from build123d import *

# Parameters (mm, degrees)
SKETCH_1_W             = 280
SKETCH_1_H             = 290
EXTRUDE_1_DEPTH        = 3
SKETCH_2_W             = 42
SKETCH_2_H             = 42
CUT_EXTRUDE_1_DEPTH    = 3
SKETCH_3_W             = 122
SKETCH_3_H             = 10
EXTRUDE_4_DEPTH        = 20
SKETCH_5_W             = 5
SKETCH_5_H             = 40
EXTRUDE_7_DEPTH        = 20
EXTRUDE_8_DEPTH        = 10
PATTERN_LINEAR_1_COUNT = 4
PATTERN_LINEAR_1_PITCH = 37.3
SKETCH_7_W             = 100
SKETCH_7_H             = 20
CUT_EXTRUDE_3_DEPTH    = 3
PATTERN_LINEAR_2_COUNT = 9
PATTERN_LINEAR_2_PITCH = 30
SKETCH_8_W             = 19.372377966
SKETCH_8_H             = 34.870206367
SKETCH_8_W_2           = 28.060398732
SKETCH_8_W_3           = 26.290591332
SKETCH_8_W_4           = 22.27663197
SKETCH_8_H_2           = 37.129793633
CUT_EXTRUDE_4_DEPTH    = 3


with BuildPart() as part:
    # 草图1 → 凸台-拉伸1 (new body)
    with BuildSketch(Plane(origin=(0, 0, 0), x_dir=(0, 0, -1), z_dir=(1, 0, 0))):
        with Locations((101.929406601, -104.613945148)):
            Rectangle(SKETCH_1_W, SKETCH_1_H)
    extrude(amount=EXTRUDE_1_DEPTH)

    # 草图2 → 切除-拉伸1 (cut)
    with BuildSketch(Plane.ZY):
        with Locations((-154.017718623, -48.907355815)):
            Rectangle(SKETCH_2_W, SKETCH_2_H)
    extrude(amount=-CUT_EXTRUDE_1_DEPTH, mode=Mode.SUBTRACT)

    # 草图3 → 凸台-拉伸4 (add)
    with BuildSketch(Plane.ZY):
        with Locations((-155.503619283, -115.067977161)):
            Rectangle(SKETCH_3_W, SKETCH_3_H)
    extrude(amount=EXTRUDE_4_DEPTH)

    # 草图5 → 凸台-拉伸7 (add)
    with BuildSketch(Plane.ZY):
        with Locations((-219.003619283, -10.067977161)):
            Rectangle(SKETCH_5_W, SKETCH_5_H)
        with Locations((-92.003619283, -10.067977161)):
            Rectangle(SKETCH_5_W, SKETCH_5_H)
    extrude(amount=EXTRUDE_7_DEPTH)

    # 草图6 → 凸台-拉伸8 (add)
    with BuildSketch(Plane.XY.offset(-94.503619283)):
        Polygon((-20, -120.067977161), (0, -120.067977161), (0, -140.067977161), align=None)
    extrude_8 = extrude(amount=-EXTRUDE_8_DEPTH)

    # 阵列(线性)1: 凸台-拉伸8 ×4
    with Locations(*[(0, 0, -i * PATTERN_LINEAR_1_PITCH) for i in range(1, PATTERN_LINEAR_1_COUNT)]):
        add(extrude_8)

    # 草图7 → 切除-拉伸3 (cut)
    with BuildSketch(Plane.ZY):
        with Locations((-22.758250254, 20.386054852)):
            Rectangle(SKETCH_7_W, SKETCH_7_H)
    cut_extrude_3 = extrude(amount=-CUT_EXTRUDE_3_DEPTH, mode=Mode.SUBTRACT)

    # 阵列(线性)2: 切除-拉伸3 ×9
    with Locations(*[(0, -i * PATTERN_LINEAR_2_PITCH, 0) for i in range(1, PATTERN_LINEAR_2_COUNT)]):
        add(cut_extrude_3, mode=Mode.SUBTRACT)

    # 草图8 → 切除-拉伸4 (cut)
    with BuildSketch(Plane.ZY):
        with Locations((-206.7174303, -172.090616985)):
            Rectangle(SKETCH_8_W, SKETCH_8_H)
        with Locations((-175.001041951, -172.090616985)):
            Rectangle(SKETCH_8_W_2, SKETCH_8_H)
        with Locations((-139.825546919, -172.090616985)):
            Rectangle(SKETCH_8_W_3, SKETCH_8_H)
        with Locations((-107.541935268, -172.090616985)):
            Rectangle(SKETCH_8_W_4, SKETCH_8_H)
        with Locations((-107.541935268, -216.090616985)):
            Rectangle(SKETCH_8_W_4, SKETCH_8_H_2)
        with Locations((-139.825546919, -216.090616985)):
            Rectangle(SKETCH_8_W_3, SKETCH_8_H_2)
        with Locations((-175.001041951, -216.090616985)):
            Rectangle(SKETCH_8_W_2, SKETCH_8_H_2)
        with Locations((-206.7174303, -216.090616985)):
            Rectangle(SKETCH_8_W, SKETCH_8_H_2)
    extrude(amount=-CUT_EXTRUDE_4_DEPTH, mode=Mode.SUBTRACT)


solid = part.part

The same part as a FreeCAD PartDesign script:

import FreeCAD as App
import Part
import Sketcher
from FreeCAD import Vector


def add_polygon(sketch, points):
    """Adds a closed chain of lines whose ends are joined by coincident constraints."""
    first, n = sketch.GeometryCount, len(points)
    for a, b in zip(points, points[1:] + points[:1]):
        sketch.addGeometry(Part.LineSegment(App.Vector(*a, 0), App.Vector(*b, 0)), False)
    for i in range(n):
        sketch.addConstraint(Sketcher.Constraint("Coincident", first + i, 2, first + (i + 1) % n, 1))

doc = App.newDocument("Part")
params = doc.addObject("Spreadsheet::Sheet", "Params")
for row, (alias, value) in enumerate([
    ("sketch1_width", "290 mm"),
    ("sketch1_height", "280 mm"),
    ("pad1_length", "3 mm"),
    ("sketch2_width", "42 mm"),
    ("pocket1_length", "3 mm"),
    ("sketch3_width", "10 mm"),
    ("sketch3_height", "122 mm"),
    ("pad2_length", "20 mm"),
    ("sketch4_width", "40 mm"),
    ("sketch4_height", "5 mm"),
    ("pad3_length", "20 mm"),
    ("sketch5_width", "20 mm"),
    ("pad4_length", "10 mm"),
    ("linearpattern_pitch", "37.3 mm"),
    ("sketch6_width", "20 mm"),
    ("sketch6_height", "100 mm"),
    ("pocket2_length", "3 mm"),
    ("linearpattern2_pitch", "30 mm"),
    ("pocket3_length", "3 mm"),
], start=1):
    params.set(f"A{row}", alias)
    params.set(f"B{row}", "=" + value)
    params.setAlias(f"B{row}", alias)

body = doc.addObject("PartDesign::Body", "Body")

# Sketch on YZ plane
sketch1 = body.newObject("Sketcher::SketchObject", "Sketch")
sketch1.AttachmentSupport = (doc.getObject("YZ_Plane"), [""])
sketch1.MapMode = "FlatFace"
add_polygon(sketch1, [(40.386055, 38.070593), (-249.613945, 38.070593), (-249.613945, -241.929407), (40.386055, -241.929407)])  # lines 0-3
sketch1.addConstraint(Sketcher.Constraint("Horizontal", 0))
sketch1.addConstraint(Sketcher.Constraint("Vertical", 1))
sketch1.addConstraint(Sketcher.Constraint("Horizontal", 2))
sketch1.addConstraint(Sketcher.Constraint("Vertical", 3))
sketch1.addConstraint(Sketcher.Constraint("DistanceX", 0, 2, 0, 1, 290.0))
sketch1.addConstraint(Sketcher.Constraint("DistanceY", 1, 2, 1, 1, 280.0))
sketch1.addConstraint(Sketcher.Constraint("DistanceX", 0, 2, -1, 1, 249.613945))
sketch1.addConstraint(Sketcher.Constraint("DistanceY", -1, 1, 0, 2, 38.070593))
sketch1.setExpression("Constraints[8]", "Params.sketch1_width")
sketch1.setExpression("Constraints[9]", "Params.sketch1_height")
pad1 = body.newObject("PartDesign::Pad", "Pad")
pad1.Profile = sketch1
pad1.setExpression("Length", "Params.pad1_length")

# Sketch on YZ plane
sketch2 = body.newObject("Sketcher::SketchObject", "Sketch001")
sketch2.AttachmentSupport = (doc.getObject("YZ_Plane"), [""])
sketch2.MapMode = "FlatFace"
add_polygon(sketch2, [(-27.907356, -175.017719), (-69.907356, -175.017719), (-69.907356, -133.017719), (-27.907356, -133.017719)])  # lines 0-3
sketch2.addConstraint(Sketcher.Constraint("Horizontal", 0))
sketch2.addConstraint(Sketcher.Constraint("Vertical", 1))
sketch2.addConstraint(Sketcher.Constraint("Horizontal", 2))
sketch2.addConstraint(Sketcher.Constraint("Vertical", 3))
sketch2.addConstraint(Sketcher.Constraint("Equal", 2, 1))
sketch2.addConstraint(Sketcher.Constraint("DistanceX", 0, 2, 0, 1, 42.0))
sketch2.addConstraint(Sketcher.Constraint("DistanceY", 0, 2, -1, 1, 175.017719))
sketch2.addConstraint(Sketcher.Constraint("DistanceX", 0, 2, -1, 1, 69.907356))
sketch2.setExpression("Constraints[9]", "Params.sketch2_width")
pocket1 = body.newObject("PartDesign::Pocket", "Pocket")
pocket1.Profile = sketch2
pocket1.setExpression("Length", "Params.pocket1_length")
pocket1.Reversed = True

# Sketch on YZ plane
sketch3 = body.newObject("Sketcher::SketchObject", "Sketch002")
sketch3.AttachmentSupport = (doc.getObject("YZ_Plane"), [""])
sketch3.MapMode = "FlatFace"
add_polygon(sketch3, [(-110.067977, -216.503619), (-120.067977, -216.503619), (-120.067977, -94.503619), (-110.067977, -94.503619)])  # lines 0-3
sketch3.addConstraint(Sketcher.Constraint("Horizontal", 0))
sketch3.addConstraint(Sketcher.Constraint("Vertical", 1))
sketch3.addConstraint(Sketcher.Constraint("Horizontal", 2))
sketch3.addConstraint(Sketcher.Constraint("Vertical", 3))
sketch3.addConstraint(Sketcher.Constraint("DistanceX", 0, 2, 0, 1, 10.0))
sketch3.addConstraint(Sketcher.Constraint("DistanceY", 1, 1, 1, 2, 122.0))
sketch3.addConstraint(Sketcher.Constraint("DistanceY", 0, 2, -1, 1, 216.503619))
sketch3.addConstraint(Sketcher.Constraint("DistanceX", 0, 2, -1, 1, 120.067977))
sketch3.setExpression("Constraints[8]", "Params.sketch3_width")
sketch3.setExpression("Constraints[9]", "Params.sketch3_height")
pad2 = body.newObject("PartDesign::Pad", "Pad001")
pad2.Profile = sketch3
pad2.setExpression("Length", "Params.pad2_length")
pad2.Reversed = True

# Sketch on YZ plane
sketch4 = body.newObject("Sketcher::SketchObject", "Sketch003")
sketch4.AttachmentSupport = (doc.getObject("YZ_Plane"), [""])
sketch4.MapMode = "FlatFace"
add_polygon(sketch4, [(9.932023, -221.503619), (-30.067977, -221.503619), (-30.067977, -216.503619), (9.932023, -216.503619)])  # lines 0-3
add_polygon(sketch4, [(9.932023, -94.503619), (-30.067977, -94.503619), (-30.067977, -89.503619), (9.932023, -89.503619)])  # lines 4-7
sketch4.addConstraint(Sketcher.Constraint("Horizontal", 0))
sketch4.addConstraint(Sketcher.Constraint("Vertical", 1))
sketch4.addConstraint(Sketcher.Constraint("Horizontal", 2))
sketch4.addConstraint(Sketcher.Constraint("Vertical", 3))
sketch4.addConstraint(Sketcher.Constraint("Horizontal", 4))
sketch4.addConstraint(Sketcher.Constraint("Vertical", 5))
sketch4.addConstraint(Sketcher.Constraint("Horizontal", 6))
sketch4.addConstraint(Sketcher.Constraint("Vertical", 7))
sketch4.addConstraint(Sketcher.Constraint("Vertical", 1, 2, 4, 2))
sketch4.addConstraint(Sketcher.Constraint("Vertical", 3, 2, 6, 2))
sketch4.addConstraint(Sketcher.Constraint("Equal", 3, 5))
sketch4.addConstraint(Sketcher.Constraint("DistanceX", 0, 2, 0, 1, 40.0))
sketch4.addConstraint(Sketcher.Constraint("DistanceY", 1, 1, 1, 2, 5.0))
sketch4.addConstraint(Sketcher.Constraint("DistanceY", 1, 2, 4, 2, 122.0))
sketch4.addConstraint(Sketcher.Constraint("DistanceY", 0, 2, -1, 1, 221.503619))
sketch4.addConstraint(Sketcher.Constraint("DistanceX", 0, 2, -1, 1, 30.067977))
sketch4.setExpression("Constraints[19]", "Params.sketch4_width")
sketch4.setExpression("Constraints[20]", "Params.sketch4_height")
pad3 = body.newObject("PartDesign::Pad", "Pad002")
pad3.Profile = sketch4
pad3.setExpression("Length", "Params.pad3_length")
pad3.Reversed = True

# Sketch on XY plane
sketch5 = body.newObject("Sketcher::SketchObject", "Sketch004")
sketch5.AttachmentSupport = (doc.getObject("XY_Plane"), [""])
sketch5.MapMode = "FlatFace"
sketch5.AttachmentOffset = App.Placement(Vector(0, 0, -94.503619), App.Rotation())
add_polygon(sketch5, [(0, -120.067977), (-20, -120.067977), (0, -140.067977)])  # lines 0-2
sketch5.addConstraint(Sketcher.Constraint("Horizontal", 0))
sketch5.addConstraint(Sketcher.Constraint("Vertical", 2))
sketch5.addConstraint(Sketcher.Constraint("PointOnObject", 1, 2, -2))
sketch5.addConstraint(Sketcher.Constraint("Equal", 0, 2))
sketch5.addConstraint(Sketcher.Constraint("DistanceX", 0, 2, 0, 1, 20.0))
sketch5.addConstraint(Sketcher.Constraint("DistanceY", 0, 2, -1, 1, 120.067977))
sketch5.setExpression("Constraints[7]", "Params.sketch5_width")
pad4 = body.newObject("PartDesign::Pad", "Pad003")
pad4.Profile = sketch5
pad4.setExpression("Length", "Params.pad4_length")
pad4.Reversed = True
doc.recompute()

linearpattern = body.newObject("PartDesign::LinearPattern", "LinearPattern")
linearpattern.Originals = [pad4]
linearpattern.Direction = (doc.getObject("Z_Axis"), [""])
linearpattern.Mode = "offset"
linearpattern.setExpression("Offset", "Params.linearpattern_pitch")
linearpattern.Occurrences = 4
linearpattern.Reversed = True
body.Tip = linearpattern

# Sketch on YZ plane
sketch6 = body.newObject("Sketcher::SketchObject", "Sketch005")
sketch6.AttachmentSupport = (doc.getObject("YZ_Plane"), [""])
sketch6.MapMode = "FlatFace"
add_polygon(sketch6, [(30.386055, -72.75825), (10.386055, -72.75825), (10.386055, 27.24175), (30.386055, 27.24175)])  # lines 0-3
sketch6.addConstraint(Sketcher.Constraint("Horizontal", 0))
sketch6.addConstraint(Sketcher.Constraint("Vertical", 1))
sketch6.addConstraint(Sketcher.Constraint("Horizontal", 2))
sketch6.addConstraint(Sketcher.Constraint("Vertical", 3))
sketch6.addConstraint(Sketcher.Constraint("DistanceX", 0, 2, 0, 1, 20.0))
sketch6.addConstraint(Sketcher.Constraint("DistanceY", 1, 1, 1, 2, 100.0))
sketch6.addConstraint(Sketcher.Constraint("DistanceY", 0, 2, -1, 1, 72.75825))
sketch6.addConstraint(Sketcher.Constraint("DistanceX", -1, 1, 0, 2, 10.386055))
sketch6.setExpression("Constraints[8]", "Params.sketch6_width")
sketch6.setExpression("Constraints[9]", "Params.sketch6_height")
pocket2 = body.newObject("PartDesign::Pocket", "Pocket001")
pocket2.Profile = sketch6
pocket2.setExpression("Length", "Params.pocket2_length")
pocket2.Reversed = True
doc.recompute()

linearpattern2 = body.newObject("PartDesign::LinearPattern", "LinearPattern001")
linearpattern2.Originals = [pocket2]
linearpattern2.Direction = (doc.getObject("Y_Axis"), [""])
linearpattern2.Mode = "offset"
linearpattern2.setExpression("Offset", "Params.linearpattern2_pitch")
linearpattern2.Occurrences = 9
linearpattern2.Reversed = True
body.Tip = linearpattern2

# Sketch on YZ plane
sketch7 = body.newObject("Sketcher::SketchObject", "Sketch006")
sketch7.AttachmentSupport = (doc.getObject("YZ_Plane"), [""])
sketch7.MapMode = "FlatFace"
add_polygon(sketch7, [(-154.655514, -216.403619), (-189.52572, -216.403619), (-189.52572, -197.031241), (-154.655514, -197.031241)])  # lines 0-3
add_polygon(sketch7, [(-154.655514, -189.031241), (-189.52572, -189.031241), (-189.52572, -160.970843), (-154.655514, -160.970843)])  # lines 4-7
add_polygon(sketch7, [(-154.655514, -152.970843), (-189.52572, -152.970843), (-189.52572, -126.680251), (-154.655514, -126.680251)])  # lines 8-11
add_polygon(sketch7, [(-154.655514, -118.680251), (-189.52572, -118.680251), (-189.52572, -96.403619), (-154.655514, -96.403619)])  # lines 12-15
add_polygon(sketch7, [(-197.52572, -118.680251), (-234.655514, -118.680251), (-234.655514, -96.403619), (-197.52572, -96.403619)])  # lines 16-19
add_polygon(sketch7, [(-197.52572, -152.970843), (-234.655514, -152.970843), (-234.655514, -126.680251), (-197.52572, -126.680251)])  # lines 20-23
add_polygon(sketch7, [(-197.52572, -189.031241), (-234.655514, -189.031241), (-234.655514, -160.970843), (-197.52572, -160.970843)])  # lines 24-27
add_polygon(sketch7, [(-197.52572, -216.403619), (-234.655514, -216.403619), (-234.655514, -197.031241), (-197.52572, -197.031241)])  # lines 28-31
sketch7.addConstraint(Sketcher.Constraint("Horizontal", 0))
sketch7.addConstraint(Sketcher.Constraint("Vertical", 1))
sketch7.addConstraint(Sketcher.Constraint("Horizontal", 2))
sketch7.addConstraint(Sketcher.Constraint("Vertical", 3))
sketch7.addConstraint(Sketcher.Constraint("Horizontal", 4))
sketch7.addConstraint(Sketcher.Constraint("Vertical", 5))
sketch7.addConstraint(Sketcher.Constraint("Horizontal", 6))
sketch7.addConstraint(Sketcher.Constraint("Vertical", 7))
sketch7.addConstraint(Sketcher.Constraint("Horizontal", 8))
sketch7.addConstraint(Sketcher.Constraint("Vertical", 9))
sketch7.addConstraint(Sketcher.Constraint("Horizontal", 10))
sketch7.addConstraint(Sketcher.Constraint("Vertical", 11))
sketch7.addConstraint(Sketcher.Constraint("Horizontal", 12))
sketch7.addConstraint(Sketcher.Constraint("Vertical", 13))
sketch7.addConstraint(Sketcher.Constraint("Horizontal", 14))
sketch7.addConstraint(Sketcher.Constraint("Vertical", 15))
sketch7.addConstraint(Sketcher.Constraint("Horizontal", 16))
sketch7.addConstraint(Sketcher.Constraint("Vertical", 17))
sketch7.addConstraint(Sketcher.Constraint("Horizontal", 18))
sketch7.addConstraint(Sketcher.Constraint("Vertical", 19))
sketch7.addConstraint(Sketcher.Constraint("Horizontal", 20))
sketch7.addConstraint(Sketcher.Constraint("Vertical", 21))
sketch7.addConstraint(Sketcher.Constraint("Horizontal", 22))
sketch7.addConstraint(Sketcher.Constraint("Vertical", 23))
sketch7.addConstraint(Sketcher.Constraint("Horizontal", 24))
sketch7.addConstraint(Sketcher.Constraint("Vertical", 25))
sketch7.addConstraint(Sketcher.Constraint("Horizontal", 26))
sketch7.addConstraint(Sketcher.Constraint("Vertical", 27))
sketch7.addConstraint(Sketcher.Constraint("Horizontal", 28))
sketch7.addConstraint(Sketcher.Constraint("Vertical", 29))
sketch7.addConstraint(Sketcher.Constraint("Horizontal", 30))
sketch7.addConstraint(Sketcher.Constraint("Vertical", 31))
sketch7.addConstraint(Sketcher.Constraint("Horizontal", 15, 2, 16, 2))
sketch7.addConstraint(Sketcher.Constraint("Horizontal", 14, 2, 17, 2))
sketch7.addConstraint(Sketcher.Constraint("Horizontal", 11, 2, 20, 2))
sketch7.addConstraint(Sketcher.Constraint("Horizontal", 10, 2, 21, 2))
sketch7.addConstraint(Sketcher.Constraint("Horizontal", 7, 2, 24, 2))
sketch7.addConstraint(Sketcher.Constraint("Horizontal", 6, 2, 25, 2))
sketch7.addConstraint(Sketcher.Constraint("Horizontal", 3, 2, 28, 2))
sketch7.addConstraint(Sketcher.Constraint("Horizontal", 2, 2, 29, 2))
sketch7.addConstraint(Sketcher.Constraint("Vertical", 1, 2, 4, 2))
sketch7.addConstraint(Sketcher.Constraint("Vertical", 3, 2, 6, 2))
sketch7.addConstraint(Sketcher.Constraint("Vertical", 5, 2, 8, 2))
sketch7.addConstraint(Sketcher.Constraint("Vertical", 7, 2, 10, 2))
sketch7.addConstraint(Sketcher.Constraint("Vertical", 9, 2, 12, 2))
sketch7.addConstraint(Sketcher.Constraint("Vertical", 11, 2, 14, 2))
sketch7.addConstraint(Sketcher.Constraint("Vertical", 17, 2, 20, 2))
sketch7.addConstraint(Sketcher.Constraint("Vertical", 19, 2, 22, 2))
sketch7.addConstraint(Sketcher.Constraint("Vertical", 21, 2, 24, 2))
sketch7.addConstraint(Sketcher.Constraint("Vertical", 23, 2, 26, 2))
sketch7.addConstraint(Sketcher.Constraint("Vertical", 25, 2, 28, 2))
sketch7.addConstraint(Sketcher.Constraint("Vertical", 27, 2, 30, 2))
sketch7.addConstraint(Sketcher.Constraint("DistanceY", 1, 2, 4, 2, 8.0))
sketch7.addConstraint(Sketcher.Constraint("DistanceY", 5, 2, 8, 2, 8.0))
sketch7.addConstraint(Sketcher.Constraint("DistanceY", 9, 2, 12, 2, 8.0))
sketch7.addConstraint(Sketcher.Constraint("DistanceX", 18, 2, 13, 2, 8.0))
sketch7.addConstraint(Sketcher.Constraint("DistanceY", 5, 1, 5, 2, 28.060399))
sketch7.addConstraint(Sketcher.Constraint("DistanceY", 9, 1, 9, 2, 26.290591))
sketch7.addConstraint(Sketcher.Constraint("DistanceY", 13, 1, 13, 2, 22.276632))
sketch7.addConstraint(Sketcher.Constraint("DistanceX", 0, 2, 0, 1, 34.870206))
sketch7.addConstraint(Sketcher.Constraint("DistanceX", 16, 2, 16, 1, 37.129794))
sketch7.addConstraint(Sketcher.Constraint("DistanceY", 1, 1, 1, 2, 19.372378))
sketch7.addConstraint(Sketcher.Constraint("DistanceX", 0, 2, -1, 1, 189.52572))
sketch7.addConstraint(Sketcher.Constraint("DistanceY", 0, 2, -1, 1, 216.403619))
pocket3 = body.newObject("PartDesign::Pocket", "Pocket002")
pocket3.Profile = sketch7
pocket3.setExpression("Length", "Params.pocket3_length")
pocket3.Reversed = True

doc.recompute()
